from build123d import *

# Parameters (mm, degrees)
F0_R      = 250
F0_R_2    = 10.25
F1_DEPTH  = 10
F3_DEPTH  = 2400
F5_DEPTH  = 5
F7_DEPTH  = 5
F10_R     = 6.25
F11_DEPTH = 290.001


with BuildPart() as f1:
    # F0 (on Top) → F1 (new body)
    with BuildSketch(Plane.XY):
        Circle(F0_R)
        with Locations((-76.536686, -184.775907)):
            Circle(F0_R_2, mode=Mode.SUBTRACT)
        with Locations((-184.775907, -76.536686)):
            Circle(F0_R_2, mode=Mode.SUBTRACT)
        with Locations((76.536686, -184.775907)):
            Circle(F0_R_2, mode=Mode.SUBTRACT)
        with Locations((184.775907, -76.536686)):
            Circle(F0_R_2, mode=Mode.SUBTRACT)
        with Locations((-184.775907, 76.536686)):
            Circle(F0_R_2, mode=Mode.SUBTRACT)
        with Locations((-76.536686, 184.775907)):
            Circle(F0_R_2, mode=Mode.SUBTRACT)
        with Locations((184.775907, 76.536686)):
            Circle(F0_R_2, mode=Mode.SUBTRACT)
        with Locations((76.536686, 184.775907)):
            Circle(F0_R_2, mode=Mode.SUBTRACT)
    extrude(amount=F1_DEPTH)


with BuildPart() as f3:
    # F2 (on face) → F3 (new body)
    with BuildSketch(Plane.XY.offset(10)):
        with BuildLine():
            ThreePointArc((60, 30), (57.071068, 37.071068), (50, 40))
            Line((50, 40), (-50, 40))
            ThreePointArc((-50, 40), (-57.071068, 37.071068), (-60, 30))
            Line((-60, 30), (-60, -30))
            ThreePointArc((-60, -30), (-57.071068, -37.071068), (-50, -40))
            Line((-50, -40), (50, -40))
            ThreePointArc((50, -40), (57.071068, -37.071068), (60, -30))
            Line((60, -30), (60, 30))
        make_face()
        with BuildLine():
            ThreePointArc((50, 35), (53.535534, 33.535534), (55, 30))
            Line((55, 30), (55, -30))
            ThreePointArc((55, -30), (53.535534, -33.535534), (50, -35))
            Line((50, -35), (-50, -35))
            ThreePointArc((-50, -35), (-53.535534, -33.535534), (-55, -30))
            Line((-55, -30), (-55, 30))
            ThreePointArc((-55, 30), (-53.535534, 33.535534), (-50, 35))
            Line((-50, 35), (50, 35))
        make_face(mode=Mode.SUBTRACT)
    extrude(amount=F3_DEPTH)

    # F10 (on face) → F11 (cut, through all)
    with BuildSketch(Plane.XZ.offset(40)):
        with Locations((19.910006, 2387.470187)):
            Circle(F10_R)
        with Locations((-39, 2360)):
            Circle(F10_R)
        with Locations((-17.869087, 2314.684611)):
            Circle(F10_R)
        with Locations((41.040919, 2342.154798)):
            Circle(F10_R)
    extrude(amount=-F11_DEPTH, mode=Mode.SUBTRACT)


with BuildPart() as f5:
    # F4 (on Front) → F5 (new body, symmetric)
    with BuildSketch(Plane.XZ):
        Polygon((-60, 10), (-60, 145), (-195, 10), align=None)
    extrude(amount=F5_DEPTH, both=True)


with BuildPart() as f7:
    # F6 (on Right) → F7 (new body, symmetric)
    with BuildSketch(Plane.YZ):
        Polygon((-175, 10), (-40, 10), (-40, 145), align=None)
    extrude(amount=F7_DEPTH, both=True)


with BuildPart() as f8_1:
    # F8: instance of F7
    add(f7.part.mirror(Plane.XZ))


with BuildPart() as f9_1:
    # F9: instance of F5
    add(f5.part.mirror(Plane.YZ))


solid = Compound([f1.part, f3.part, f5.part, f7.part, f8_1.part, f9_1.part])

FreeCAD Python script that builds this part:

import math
import FreeCAD as App
import Part
import Sketcher


def add_polygon(sketch, points):
    """Adds a closed chain of lines whose ends are joined by coincident constraints."""
    first, n = sketch.GeometryCount, len(points)
    for a, b in zip(points, points[1:] + points[:1]):
        sketch.addGeometry(Part.LineSegment(App.Vector(*a, 0), App.Vector(*b, 0)), False)
    for i in range(n):
        sketch.addConstraint(Sketcher.Constraint("Coincident", first + i, 2, first + (i + 1) % n, 1))

doc = App.newDocument("Part")
body = doc.addObject("PartDesign::Body", "Body")

sketch1 = body.newObject("Sketcher::SketchObject", "Sketch")
sketch1.AttachmentSupport = (doc.getObject("XY_Plane"), [""])
sketch1.MapMode = "FlatFace"
sketch1.addGeometry(Part.Circle(App.Vector(0, 0, 0), App.Vector(0, 0, 1), 250), False)
sketch1.addGeometry(Part.Circle(App.Vector(-77, -185, 0), App.Vector(0, 0, 1), 10), False)
sketch1.addGeometry(Part.Circle(App.Vector(-185, -77, 0), App.Vector(0, 0, 1), 10), False)
sketch1.addGeometry(Part.Circle(App.Vector(77, -185, 0), App.Vector(0, 0, 1), 10), False)
sketch1.addGeometry(Part.Circle(App.Vector(185, -77, 0), App.Vector(0, 0, 1), 10), False)
sketch1.addGeometry(Part.Circle(App.Vector(-185, 77, 0), App.Vector(0, 0, 1), 10), False)
sketch1.addGeometry(Part.Circle(App.Vector(-77, 185, 0), App.Vector(0, 0, 1), 10), False)
sketch1.addGeometry(Part.Circle(App.Vector(185, 77, 0), App.Vector(0, 0, 1), 10), False)
sketch1.addGeometry(Part.Circle(App.Vector(77, 185, 0), App.Vector(0, 0, 1), 10), False)
sketch1.addConstraint(Sketcher.Constraint("Coincident", 0, 3, -1, 1))
sketch1.addConstraint(Sketcher.Constraint("Equal", 1, 2))
sketch1.addConstraint(Sketcher.Constraint("Equal", 2, 3))
sketch1.addConstraint(Sketcher.Constraint("Equal", 3, 4))
sketch1.addConstraint(Sketcher.Constraint("Equal", 4, 5))
sketch1.addConstraint(Sketcher.Constraint("Equal", 5, 6))
sketch1.addConstraint(Sketcher.Constraint("Equal", 6, 7))
sketch1.addConstraint(Sketcher.Constraint("Equal", 7, 8))
sketch1.addConstraint(Sketcher.Constraint("Symmetric", 4, 3, 5, 3, -1, 1))
sketch1.addConstraint(Sketcher.Constraint("Symmetric", 3, 3, 6, 3, -1, 1))
sketch1.addConstraint(Sketcher.Constraint("Symmetric", 2, 3, 7, 3, -1, 1))
sketch1.addConstraint(Sketcher.Constraint("Symmetric", 1, 3, 8, 3, -1, 1))
sketch1.addConstraint(Sketcher.Constraint("Symmetric", 1, 3, 3, 3, -2))
sketch1.addConstraint(Sketcher.Constraint("Symmetric", 2, 3, 4, 3, -2))
sketch1.addConstraint(Sketcher.Constraint("Diameter", 0, 500.0))
sketch1.addConstraint(Sketcher.Constraint("Diameter", 1, 20.5))
sketch1.addConstraint(Sketcher.Constraint("DistanceX", 2, 3, 1, 3, 108.239221))
sketch1.addConstraint(Sketcher.Constraint("DistanceY", 1, 3, 2, 3, 108.239221))
sketch1.addConstraint(Sketcher.Constraint("DistanceX", 1, 3, 3, 3, 153.073372))
sketch1.addConstraint(Sketcher.Constraint("DistanceY", 2, 3, 5, 3, 153.073372))
pad1 = body.newObject("PartDesign::Pad", "Pad")
pad1.Profile = sketch1
pad1.Length = 10
body2 = doc.addObject("PartDesign::Body", "Body001")

sketch2 = body2.newObject("Sketcher::SketchObject", "Sketch001")
sketch2.AttachmentSupport = (doc.getObject("XY_Plane001"), [""])
sketch2.MapMode = "FlatFace"
sketch2.AttachmentOffset = App.Placement(App.Vector(0, 0, 10), App.Rotation())
sketch2.addGeometry(Part.ArcOfCircle(Part.Circle(App.Vector(50, 30, 0), App.Vector(0, 0, 1), 10), math.radians(0), math.radians(90)), False)
sketch2.addGeometry(Part.LineSegment(App.Vector(50, 40, 0), App.Vector(-50, 40, 0)), False)
sketch2.addGeometry(Part.ArcOfCircle(Part.Circle(App.Vector(-50, 30, 0), App.Vector(0, 0, 1), 10), math.radians(90), math.radians(180)), False)
sketch2.addGeometry(Part.LineSegment(App.Vector(-60, 30, 0), App.Vector(-60, -30, 0)), False)
sketch2.addGeometry(Part.ArcOfCircle(Part.Circle(App.Vector(-50, -30, 0), App.Vector(0, 0, 1), 10), math.radians(180), math.radians(270)), False)
sketch2.addGeometry(Part.LineSegment(App.Vector(-50, -40, 0), App.Vector(50, -40, 0)), False)
sketch2.addGeometry(Part.ArcOfCircle(Part.Circle(App.Vector(50, -30, 0), App.Vector(0, 0, 1), 10), math.radians(-90), math.radians(0)), False)
sketch2.addGeometry(Part.LineSegment(App.Vector(60, -30, 0), App.Vector(60, 30, 0)), False)
sketch2.addGeometry(Part.LineSegment(App.Vector(-50, 35, 0), App.Vector(50, 35, 0)), False)
sketch2.addGeometry(Part.ArcOfCircle(Part.Circle(App.Vector(50, 30, 0), App.Vector(0, 0, 1), 5), math.radians(0), math.radians(90)), False)
sketch2.addGeometry(Part.LineSegment(App.Vector(55, 30, 0), App.Vector(55, -30, 0)), False)
sketch2.addGeometry(Part.ArcOfCircle(Part.Circle(App.Vector(50, -30, 0), App.Vector(0, 0, 1), 5), math.radians(-90), math.radians(0)), False)
sketch2.addGeometry(Part.LineSegment(App.Vector(50, -35, 0), App.Vector(-50, -35, 0)), False)
sketch2.addGeometry(Part.ArcOfCircle(Part.Circle(App.Vector(-50, -30, 0), App.Vector(0, 0, 1), 5), math.radians(180), math.radians(270)), False)
sketch2.addGeometry(Part.LineSegment(App.Vector(-55, -30, 0), App.Vector(-55, 30, 0)), False)
sketch2.addGeometry(Part.ArcOfCircle(Part.Circle(App.Vector(-50, 30, 0), App.Vector(0, 0, 1), 5), math.radians(90), math.radians(180)), False)
sketch2.addConstraint(Sketcher.Constraint("Tangent", 0, 2, 1, 1))
sketch2.addConstraint(Sketcher.Constraint("Tangent", 1, 2, 2, 1))
sketch2.addConstraint(Sketcher.Constraint("Tangent", 2, 2, 3, 1))
sketch2.addConstraint(Sketcher.Constraint("Tangent", 3, 2, 4, 1))
sketch2.addConstraint(Sketcher.Constraint("Tangent", 4, 2, 5, 1))
sketch2.addConstraint(Sketcher.Constraint("Tangent", 5, 2, 6, 1))
sketch2.addConstraint(Sketcher.Constraint("Tangent", 6, 2, 7, 1))
sketch2.addConstraint(Sketcher.Constraint("Tangent", 7, 2, 0, 1))
sketch2.addConstraint(Sketcher.Constraint("Tangent", 8, 2, 9, 2))
sketch2.addConstraint(Sketcher.Constraint("Tangent", 9, 1, 10, 1))
sketch2.addConstraint(Sketcher.Constraint("Tangent", 10, 2, 11, 2))
sketch2.addConstraint(Sketcher.Constraint("Tangent", 11, 1, 12, 1))
sketch2.addConstraint(Sketcher.Constraint("Tangent", 12, 2, 13, 2))
sketch2.addConstraint(Sketcher.Constraint("Tangent", 13, 1, 14, 1))
sketch2.addConstraint(Sketcher.Constraint("Tangent", 14, 2, 15, 2))
sketch2.addConstraint(Sketcher.Constraint("Tangent", 15, 1, 8, 1))
sketch2.addConstraint(Sketcher.Constraint("Horizontal", 1))
sketch2.addConstraint(Sketcher.Constraint("Vertical", 3))
sketch2.addConstraint(Sketcher.Constraint("Horizontal", 5))
sketch2.addConstraint(Sketcher.Constraint("Vertical", 7))
sketch2.addConstraint(Sketcher.Constraint("Horizontal", 8))
sketch2.addConstraint(Sketcher.Constraint("Vertical", 10))
sketch2.addConstraint(Sketcher.Constraint("Horizontal", 12))
sketch2.addConstraint(Sketcher.Constraint("Vertical", 14))
sketch2.addConstraint(Sketcher.Constraint("Coincident", 9, 3, 0, 3))
sketch2.addConstraint(Sketcher.Constraint("Coincident", 11, 3, 6, 3))
sketch2.addConstraint(Sketcher.Constraint("Coincident", 13, 3, 4, 3))
sketch2.addConstraint(Sketcher.Constraint("Equal", 0, 2))
sketch2.addConstraint(Sketcher.Constraint("Equal", 2, 4))
sketch2.addConstraint(Sketcher.Constraint("Equal", 4, 6))
sketch2.addConstraint(Sketcher.Constraint("Equal", 13, 15))
sketch2.addConstraint(Sketcher.Constraint("Symmetric", 0, 3, 4, 3, -1, 1))
sketch2.addConstraint(Sketcher.Constraint("Radius", 0, 9.999999))
sketch2.addConstraint(Sketcher.Constraint("Radius", 9, 5.0))
sketch2.addConstraint(Sketcher.Constraint("DistanceX", 1, 2, 1, 1, 100.0))
sketch2.addConstraint(Sketcher.Constraint("DistanceY", 3, 2, 3, 1, 60.0))
pad2 = body2.newObject("PartDesign::Pad", "Pad001")
pad2.Profile = sketch2
pad2.Length = 2400

sketch3 = body2.newObject("Sketcher::SketchObject", "Sketch002")
sketch3.AttachmentSupport = (doc.getObject("XZ_Plane001"), [""])
sketch3.MapMode = "FlatFace"
sketch3.AttachmentOffset = App.Placement(App.Vector(0, 0, 40), App.Rotation())
sketch3.addGeometry(Part.Circle(App.Vector(20, 2387, 0), App.Vector(0, 0, 1), 6), False)
sketch3.addGeometry(Part.Circle(App.Vector(-39, 2360, 0), App.Vector(0, 0, 1), 6), False)
sketch3.addGeometry(Part.Circle(App.Vector(-18, 2315, 0), App.Vector(0, 0, 1), 6), False)
sketch3.addGeometry(Part.Circle(App.Vector(41, 2342, 0), App.Vector(0, 0, 1), 6), False)
sketch3.addConstraint(Sketcher.Constraint("Equal", 0, 1))
sketch3.addConstraint(Sketcher.Constraint("Equal", 1, 2))
sketch3.addConstraint(Sketcher.Constraint("Equal", 2, 3))
sketch3.addConstraint(Sketcher.Constraint("Diameter", 0, 12.5))
sketch3.addConstraint(Sketcher.Constraint("DistanceX", 1, 3, -1, 1, 39.0))
sketch3.addConstraint(Sketcher.Constraint("DistanceY", -1, 1, 1, 3, 2360.0))
sketch3.addConstraint(Sketcher.Constraint("DistanceY", -1, 1, 3, 3, 2342.154798))
sketch3.addConstraint(Sketcher.Constraint("DistanceY", -1, 1, 2, 3, 2314.684611))
sketch3.addConstraint(Sketcher.Constraint("DistanceX", -1, 1, 3, 3, 41.040919))
sketch3.addConstraint(Sketcher.Constraint("DistanceY", 3, 3, 0, 3, 45.315389))
sketch3.addConstraint(Sketcher.Constraint("DistanceX", -1, 1, 0, 3, 19.910006))
sketch3.addConstraint(Sketcher.Constraint("DistanceX", 2, 3, -1, 1, 17.869087))
pocket1 = body2.newObject("PartDesign::Pocket", "Pocket")
pocket1.Profile = sketch3
pocket1.Type = "ThroughAll"
body3 = doc.addObject("PartDesign::Body", "Body002")

sketch4 = body3.newObject("Sketcher::SketchObject", "Sketch003")
sketch4.AttachmentSupport = (doc.getObject("XZ_Plane002"), [""])
sketch4.MapMode = "FlatFace"
add_polygon(sketch4, [(-60, 10), (-60, 145), (-195, 10)])
sketch4.addConstraint(Sketcher.Constraint("Vertical", 0))
sketch4.addConstraint(Sketcher.Constraint("Horizontal", 2))
sketch4.addConstraint(Sketcher.Constraint("Equal", 2, 0))
sketch4.addConstraint(Sketcher.Constraint("DistanceX", 2, 1, 2, 2, 135.0))
sketch4.addConstraint(Sketcher.Constraint("DistanceX", 0, 2, -1, 1, 60.0))
sketch4.addConstraint(Sketcher.Constraint("DistanceY", -1, 1, 0, 2, 145.0))
pad3 = body3.newObject("PartDesign::Pad", "Pad002")
pad3.Profile = sketch4
pad3.Length = 10
pad3.Midplane = True
body4 = doc.addObject("PartDesign::Body", "Body003")

sketch5 = body4.newObject("Sketcher::SketchObject", "Sketch004")
sketch5.AttachmentSupport = (doc.getObject("YZ_Plane003"), [""])
sketch5.MapMode = "FlatFace"
add_polygon(sketch5, [(-175, 10), (-40, 10), (-40, 145)])
sketch5.addConstraint(Sketcher.Constraint("Horizontal", 0))
sketch5.addConstraint(Sketcher.Constraint("Vertical", 1))
sketch5.addConstraint(Sketcher.Constraint("Equal", 0, 1))
sketch5.addConstraint(Sketcher.Constraint("DistanceX", 0, 1, 0, 2, 135.0))
sketch5.addConstraint(Sketcher.Constraint("DistanceX", 0, 2, -1, 1, 40.0))
sketch5.addConstraint(Sketcher.Constraint("DistanceY", -1, 1, 0, 2, 10.0))
pad4 = body4.newObject("PartDesign::Pad", "Pad003")
pad4.Profile = sketch5
pad4.Length = 10
pad4.Midplane = True
body5 = doc.addObject("PartDesign::Body", "Body004")
doc.recompute()

mirroring = doc.addObject("Part::Mirroring", "Mirroring")
mirroring.Source = body4
mirroring.Base = App.Vector(0, 0, 0)
mirroring.Normal = App.Vector(0, -1, 0)
body5.BaseFeature = mirroring
doc.recompute()
body6 = doc.addObject("PartDesign::Body", "Body005")
doc.recompute()

mirroring2 = doc.addObject("Part::Mirroring", "Mirroring001")
mirroring2.Source = body3
mirroring2.Base = App.Vector(0, 0, 0)
mirroring2.Normal = App.Vector(1, 0, 0)
body6.BaseFeature = mirroring2
doc.recompute()
mirroring.Visibility = False
mirroring2.Visibility = False

doc.recompute()
